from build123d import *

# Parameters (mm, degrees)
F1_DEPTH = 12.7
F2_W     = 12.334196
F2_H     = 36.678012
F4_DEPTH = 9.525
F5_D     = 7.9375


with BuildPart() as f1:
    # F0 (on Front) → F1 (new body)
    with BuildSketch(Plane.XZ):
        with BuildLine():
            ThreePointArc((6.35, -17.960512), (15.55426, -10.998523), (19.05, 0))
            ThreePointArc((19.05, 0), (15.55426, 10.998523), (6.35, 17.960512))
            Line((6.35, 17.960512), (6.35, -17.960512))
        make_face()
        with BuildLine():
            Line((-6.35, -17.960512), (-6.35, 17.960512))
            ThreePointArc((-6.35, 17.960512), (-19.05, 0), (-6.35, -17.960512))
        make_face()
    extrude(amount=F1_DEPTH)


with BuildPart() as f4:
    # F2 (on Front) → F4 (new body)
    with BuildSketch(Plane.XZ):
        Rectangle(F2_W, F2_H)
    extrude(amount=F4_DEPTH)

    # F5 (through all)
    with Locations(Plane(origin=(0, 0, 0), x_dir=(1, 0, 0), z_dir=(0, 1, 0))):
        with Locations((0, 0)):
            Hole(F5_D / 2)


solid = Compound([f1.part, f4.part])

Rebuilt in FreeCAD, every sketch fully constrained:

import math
import FreeCAD as App
import Part
import Sketcher
from FreeCAD import Vector
Q = App.Units.Quantity


def add_polygon(sketch, points):
    """Adds a closed chain of lines whose ends are joined by coincident constraints."""
    first, n = sketch.GeometryCount, len(points)
    for a, b in zip(points, points[1:] + points[:1]):
        sketch.addGeometry(Part.LineSegment(App.Vector(*a, 0), App.Vector(*b, 0)), False)
    for i in range(n):
        sketch.addConstraint(Sketcher.Constraint("Coincident", first + i, 2, first + (i + 1) % n, 1))

doc = App.newDocument("Part")
body = doc.addObject("PartDesign::Body", "Body")
body.AllowCompound = True

# Sketch on XZ plane
sketch1 = doc.addObject("Sketcher::SketchObject", "Sketch")
body.addObject(sketch1)
sketch1.AttachmentSupport = (doc.XZ_Plane, [""])
sketch1.MapMode = "FlatFace"
sketch1.addGeometry(Part.ArcOfCircle(Part.Circle(Vector(0.000002, -0.000001, 0), Vector(0, 0, 1), 19.049998), math.radians(-70.528784), math.radians(0.000004)), False)
sketch1.addGeometry(Part.ArcOfCircle(Part.Circle(Vector(0.000002, 0.000001, 0), Vector(0, 0, 1), 19.049998), math.radians(-0.000004), math.radians(70.528784)), False)
sketch1.addGeometry(Part.LineSegment(Vector(6.35, 17.960512, 0), Vector(6.35, -17.960512, 0)), False)
sketch1.addGeometry(Part.LineSegment(Vector(-6.35, -17.960512, 0), Vector(-6.35, 17.960512, 0)), False)
sketch1.addGeometry(Part.ArcOfCircle(Part.Circle(Vector(0, 0, 0), Vector(0, 0, 1), 19.05), math.radians(109.47122), math.radians(250.52878)), False)
sketch1.addConstraint(Sketcher.Constraint("Tangent", 0, 2, 1, 1))
sketch1.addConstraint(Sketcher.Constraint("Coincident", 1, 2, 2, 1))
sketch1.addConstraint(Sketcher.Constraint("Coincident", 2, 2, 0, 1))
sketch1.addConstraint(Sketcher.Constraint("Coincident", 3, 1, 4, 2))
sketch1.addConstraint(Sketcher.Constraint("Coincident", 4, 1, 3, 2))
sketch1.addConstraint(Sketcher.Constraint("Vertical", 2))
sketch1.addConstraint(Sketcher.Constraint("Vertical", 3))
sketch1.addConstraint(Sketcher.Constraint("Coincident", 0, 3, -1, 1))
sketch1.addConstraint(Sketcher.Constraint("Coincident", 4, 3, -1, 1))
sketch1.addConstraint(Sketcher.Constraint("Equal", 0, 1))
sketch1.addConstraint(Sketcher.Constraint("Equal", 1, 4))
sketch1.addConstraint(Sketcher.Constraint("PointOnObject", 0, 2, -1))
sketch1.addConstraint(Sketcher.Constraint("Horizontal", 2, 2, 3, 1))
sketch1.addConstraint(Sketcher.Constraint("Radius", 0, Q("0.7499999 in")))
sketch1.addConstraint(Sketcher.Constraint("DistanceX", 3, 1, 0, 2, Q("1 in")))
pad1 = doc.addObject("PartDesign::Pad", "Pad")
body.addObject(pad1)
pad1.Profile = sketch1
pad1.Length = Q("0.5 in")
body2 = doc.addObject("PartDesign::Body", "Body001")

# Sketch on XZ plane
sketch2 = doc.addObject("Sketcher::SketchObject", "Sketch001")
body2.addObject(sketch2)
sketch2.AttachmentSupport = (doc.getObject("XZ_Plane001"), [""])
sketch2.MapMode = "FlatFace"
add_polygon(sketch2, [(-6.167098, 18.339006), (-6.167098, -18.339006), (6.167098, -18.339006), (6.167098, 18.339006)])  # lines 0-3
sketch2.addConstraint(Sketcher.Constraint("Vertical", 0))
sketch2.addConstraint(Sketcher.Constraint("Horizontal", 1))
sketch2.addConstraint(Sketcher.Constraint("Vertical", 2))
sketch2.addConstraint(Sketcher.Constraint("Horizontal", 3))
sketch2.addConstraint(Sketcher.Constraint("Symmetric", 0, 2, 2, 2, -1, 1))
sketch2.addConstraint(Sketcher.Constraint("DistanceX", 0, 2, -1, 1, 6.167098))
sketch2.addConstraint(Sketcher.Constraint("DistanceY", 0, 2, 0, 1, 36.678012))
pad2 = doc.addObject("PartDesign::Pad", "Pad001")
body2.addObject(pad2)
pad2.Profile = sketch2
pad2.Length = Q("0.375 in")

# Sketch on XZ plane
sketch3 = doc.addObject("Sketcher::SketchObject", "Sketch002")
body2.addObject(sketch3)
sketch3.AttachmentSupport = (doc.getObject("XZ_Plane001"), [""])
sketch3.MapMode = "FlatFace"
sketch3.addGeometry(Part.Circle(Vector(0, 0, 0), Vector(0, 0, 1), 3.96875), False)
sketch3.addConstraint(Sketcher.Constraint("Coincident", 0, 3, -1, 1))
sketch3.addConstraint(Sketcher.Constraint("Diameter", 0, Q("0.3125 in")))
doc.recompute()
hole = doc.addObject("PartDesign::Hole", "Hole")
body2.addObject(hole)
hole.Profile = sketch3
hole.ThreadType = "None"
hole.Diameter = Q("0.3125 in")
hole.DepthType = "ThroughAll"
hole.Reversed = True

doc.recompute()
